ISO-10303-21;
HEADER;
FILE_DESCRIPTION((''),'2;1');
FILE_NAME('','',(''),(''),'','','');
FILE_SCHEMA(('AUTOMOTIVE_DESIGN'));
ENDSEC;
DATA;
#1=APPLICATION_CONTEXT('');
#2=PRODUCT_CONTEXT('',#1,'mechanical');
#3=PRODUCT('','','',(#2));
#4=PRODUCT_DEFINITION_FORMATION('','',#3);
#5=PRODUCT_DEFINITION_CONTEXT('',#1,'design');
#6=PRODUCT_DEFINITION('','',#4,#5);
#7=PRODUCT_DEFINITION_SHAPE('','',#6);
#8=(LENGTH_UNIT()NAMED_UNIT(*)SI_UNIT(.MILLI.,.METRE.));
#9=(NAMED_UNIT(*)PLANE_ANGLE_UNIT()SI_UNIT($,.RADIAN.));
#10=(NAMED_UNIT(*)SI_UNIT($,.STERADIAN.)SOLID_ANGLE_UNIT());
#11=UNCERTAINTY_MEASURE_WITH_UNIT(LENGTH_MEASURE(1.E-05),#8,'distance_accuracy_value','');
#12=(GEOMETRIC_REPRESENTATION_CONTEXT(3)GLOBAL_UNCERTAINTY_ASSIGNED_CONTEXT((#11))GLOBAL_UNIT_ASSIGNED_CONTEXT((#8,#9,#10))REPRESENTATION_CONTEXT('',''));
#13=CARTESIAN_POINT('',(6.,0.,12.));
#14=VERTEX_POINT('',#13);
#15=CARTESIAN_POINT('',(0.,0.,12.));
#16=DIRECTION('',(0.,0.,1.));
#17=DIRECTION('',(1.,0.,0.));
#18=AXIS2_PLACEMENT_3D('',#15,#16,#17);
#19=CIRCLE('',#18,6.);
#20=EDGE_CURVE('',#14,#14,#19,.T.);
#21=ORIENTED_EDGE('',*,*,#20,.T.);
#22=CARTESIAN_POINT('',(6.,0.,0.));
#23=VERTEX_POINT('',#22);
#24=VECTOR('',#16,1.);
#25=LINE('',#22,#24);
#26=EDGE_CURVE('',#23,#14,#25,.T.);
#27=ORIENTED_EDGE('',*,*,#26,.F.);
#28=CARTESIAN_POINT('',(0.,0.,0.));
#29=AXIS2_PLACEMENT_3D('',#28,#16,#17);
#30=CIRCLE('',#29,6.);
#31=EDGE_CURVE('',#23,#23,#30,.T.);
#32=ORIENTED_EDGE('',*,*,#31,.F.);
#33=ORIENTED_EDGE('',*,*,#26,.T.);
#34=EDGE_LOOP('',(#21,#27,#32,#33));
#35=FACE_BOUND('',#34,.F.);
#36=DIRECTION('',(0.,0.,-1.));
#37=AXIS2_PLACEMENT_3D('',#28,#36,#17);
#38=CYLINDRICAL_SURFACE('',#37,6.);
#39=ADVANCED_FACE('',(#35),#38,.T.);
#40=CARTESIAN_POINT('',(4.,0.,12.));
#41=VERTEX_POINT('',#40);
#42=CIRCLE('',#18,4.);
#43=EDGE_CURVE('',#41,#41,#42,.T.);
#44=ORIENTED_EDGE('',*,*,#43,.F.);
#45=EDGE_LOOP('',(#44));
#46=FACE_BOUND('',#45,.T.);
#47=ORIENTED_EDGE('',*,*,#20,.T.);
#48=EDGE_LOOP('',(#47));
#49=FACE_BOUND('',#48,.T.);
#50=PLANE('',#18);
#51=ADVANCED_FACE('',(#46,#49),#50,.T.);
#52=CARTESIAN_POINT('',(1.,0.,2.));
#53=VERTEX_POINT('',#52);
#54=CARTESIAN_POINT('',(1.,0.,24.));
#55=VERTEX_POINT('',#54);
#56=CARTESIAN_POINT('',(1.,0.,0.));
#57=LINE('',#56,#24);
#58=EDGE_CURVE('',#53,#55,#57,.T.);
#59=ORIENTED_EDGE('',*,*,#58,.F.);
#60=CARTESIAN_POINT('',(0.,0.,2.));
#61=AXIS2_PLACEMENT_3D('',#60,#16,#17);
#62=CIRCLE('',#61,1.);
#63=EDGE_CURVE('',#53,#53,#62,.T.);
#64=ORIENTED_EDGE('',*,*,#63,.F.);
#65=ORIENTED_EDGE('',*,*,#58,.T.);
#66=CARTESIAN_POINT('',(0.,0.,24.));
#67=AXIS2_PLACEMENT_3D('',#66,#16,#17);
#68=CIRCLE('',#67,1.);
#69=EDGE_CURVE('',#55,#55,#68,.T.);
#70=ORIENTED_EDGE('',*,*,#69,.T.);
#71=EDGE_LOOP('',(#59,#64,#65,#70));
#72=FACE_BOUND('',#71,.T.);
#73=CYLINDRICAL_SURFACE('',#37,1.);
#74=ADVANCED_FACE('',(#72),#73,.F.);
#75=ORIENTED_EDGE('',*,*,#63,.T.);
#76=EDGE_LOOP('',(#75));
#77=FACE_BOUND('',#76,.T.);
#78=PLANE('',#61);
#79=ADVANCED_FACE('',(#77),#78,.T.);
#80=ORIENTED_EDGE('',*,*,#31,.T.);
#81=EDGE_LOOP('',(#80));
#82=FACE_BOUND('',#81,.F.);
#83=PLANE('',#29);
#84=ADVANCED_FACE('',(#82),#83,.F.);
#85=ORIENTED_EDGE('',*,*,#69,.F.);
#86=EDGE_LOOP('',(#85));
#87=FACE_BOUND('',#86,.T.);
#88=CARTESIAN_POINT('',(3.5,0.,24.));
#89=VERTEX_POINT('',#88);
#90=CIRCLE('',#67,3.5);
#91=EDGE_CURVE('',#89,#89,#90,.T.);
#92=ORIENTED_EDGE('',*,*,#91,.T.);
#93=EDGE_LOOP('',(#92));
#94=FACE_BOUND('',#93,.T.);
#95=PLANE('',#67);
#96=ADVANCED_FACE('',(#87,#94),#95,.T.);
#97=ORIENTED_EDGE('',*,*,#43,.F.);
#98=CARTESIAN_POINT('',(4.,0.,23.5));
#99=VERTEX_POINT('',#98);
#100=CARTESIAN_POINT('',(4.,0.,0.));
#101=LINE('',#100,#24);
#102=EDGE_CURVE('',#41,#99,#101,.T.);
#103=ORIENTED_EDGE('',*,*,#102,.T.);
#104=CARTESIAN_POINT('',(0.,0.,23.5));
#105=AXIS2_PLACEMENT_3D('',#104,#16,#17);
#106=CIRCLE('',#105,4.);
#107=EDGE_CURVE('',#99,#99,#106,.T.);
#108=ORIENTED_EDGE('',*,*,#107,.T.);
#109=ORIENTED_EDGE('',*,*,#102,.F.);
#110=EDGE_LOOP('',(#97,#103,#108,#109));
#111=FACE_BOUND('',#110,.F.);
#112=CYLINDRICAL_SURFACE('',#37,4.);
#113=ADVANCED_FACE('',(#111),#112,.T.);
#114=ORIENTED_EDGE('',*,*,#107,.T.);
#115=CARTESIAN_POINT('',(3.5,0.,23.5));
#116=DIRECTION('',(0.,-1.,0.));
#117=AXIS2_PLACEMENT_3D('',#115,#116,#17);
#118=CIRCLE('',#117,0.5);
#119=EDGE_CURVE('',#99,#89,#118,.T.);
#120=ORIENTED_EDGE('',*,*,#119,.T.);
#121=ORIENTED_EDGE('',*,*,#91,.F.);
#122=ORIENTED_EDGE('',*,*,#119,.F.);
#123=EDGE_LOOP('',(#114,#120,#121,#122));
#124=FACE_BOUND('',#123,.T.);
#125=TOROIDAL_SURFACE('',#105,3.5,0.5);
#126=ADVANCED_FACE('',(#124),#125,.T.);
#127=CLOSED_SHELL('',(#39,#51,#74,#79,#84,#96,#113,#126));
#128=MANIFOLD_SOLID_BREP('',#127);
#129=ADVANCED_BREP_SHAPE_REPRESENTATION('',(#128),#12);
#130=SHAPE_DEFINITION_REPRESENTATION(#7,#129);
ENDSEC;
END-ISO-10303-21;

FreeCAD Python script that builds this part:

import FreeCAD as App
import Part
import Sketcher

V = App.Vector


def edges_at(feature, points):
    """Names of the edges that pass closest to the given points."""
    edges = feature.Shape.Edges
    near = lambda p: min(range(len(edges)), key=lambda i: edges[i].distToShape(Part.Vertex(*p))[0])
    return sorted({f"Edge{near(p) + 1}" for p in points})

doc = App.newDocument("Part")
body = doc.addObject("PartDesign::Body", "Body")

# Sketch on XY plane
sketch1 = body.newObject("Sketcher::SketchObject", "Sketch")
sketch1.AttachmentSupport = (doc.getObject("XY_Plane"), [""])
sketch1.MapMode = "FlatFace"
sketch1.addGeometry(Part.Circle(V(0, 0, 0), V(0, 0, 1), 1), False)
sketch1.addConstraint([
    Sketcher.Constraint("Coincident", 0, 3, -1, 1),
    Sketcher.Constraint("Diameter", 0, 2.0),
])
pad1 = body.newObject("PartDesign::Pad", "Pad")
pad1.Profile = sketch1
pad1.Length = 2

# Sketch on XY plane
sketch2 = body.newObject("Sketcher::SketchObject", "Sketch001")
sketch2.AttachmentSupport = (doc.getObject("XY_Plane"), [""])
sketch2.MapMode = "FlatFace"
sketch2.addGeometry([
    Part.Circle(V(0, 0, 0), V(0, 0, 1), 4),
    Part.Circle(V(0, 0, 0), V(0, 0, 1), 1),
], False)
sketch2.addConstraint([
    Sketcher.Constraint("Coincident", 0, 3, -1, 1),
    Sketcher.Constraint("Coincident", 1, 3, -1, 1),
    Sketcher.Constraint("Diameter", 0, 8.0),
    Sketcher.Constraint("Diameter", 1, 2.0),
])
pad2 = body.newObject("PartDesign::Pad", "Pad001")
pad2.Profile = sketch2
pad2.Length = 24

# Sketch on XY plane
sketch3 = body.newObject("Sketcher::SketchObject", "Sketch002")
sketch3.AttachmentSupport = (doc.getObject("XY_Plane"), [""])
sketch3.MapMode = "FlatFace"
sketch3.addGeometry([
    Part.Circle(V(0, 0, 0), V(0, 0, 1), 6),
    Part.Circle(V(0, 0, 0), V(0, 0, 1), 4),
], False)
sketch3.addConstraint([
    Sketcher.Constraint("Coincident", 0, 3, -1, 1),
    Sketcher.Constraint("Coincident", 1, 3, -1, 1),
    Sketcher.Constraint("Diameter", 0, 12.0),
    Sketcher.Constraint("Diameter", 1, 8.0),
])
pad3 = body.newObject("PartDesign::Pad", "Pad002")
pad3.Profile = sketch3
pad3.Length = 12
doc.recompute()

fillet = body.newObject("PartDesign::Fillet", "Fillet")
fillet.Base = (pad3, edges_at(pad3, [(-4, 0, 24)]))
fillet.Radius = 0.5

doc.recompute()
